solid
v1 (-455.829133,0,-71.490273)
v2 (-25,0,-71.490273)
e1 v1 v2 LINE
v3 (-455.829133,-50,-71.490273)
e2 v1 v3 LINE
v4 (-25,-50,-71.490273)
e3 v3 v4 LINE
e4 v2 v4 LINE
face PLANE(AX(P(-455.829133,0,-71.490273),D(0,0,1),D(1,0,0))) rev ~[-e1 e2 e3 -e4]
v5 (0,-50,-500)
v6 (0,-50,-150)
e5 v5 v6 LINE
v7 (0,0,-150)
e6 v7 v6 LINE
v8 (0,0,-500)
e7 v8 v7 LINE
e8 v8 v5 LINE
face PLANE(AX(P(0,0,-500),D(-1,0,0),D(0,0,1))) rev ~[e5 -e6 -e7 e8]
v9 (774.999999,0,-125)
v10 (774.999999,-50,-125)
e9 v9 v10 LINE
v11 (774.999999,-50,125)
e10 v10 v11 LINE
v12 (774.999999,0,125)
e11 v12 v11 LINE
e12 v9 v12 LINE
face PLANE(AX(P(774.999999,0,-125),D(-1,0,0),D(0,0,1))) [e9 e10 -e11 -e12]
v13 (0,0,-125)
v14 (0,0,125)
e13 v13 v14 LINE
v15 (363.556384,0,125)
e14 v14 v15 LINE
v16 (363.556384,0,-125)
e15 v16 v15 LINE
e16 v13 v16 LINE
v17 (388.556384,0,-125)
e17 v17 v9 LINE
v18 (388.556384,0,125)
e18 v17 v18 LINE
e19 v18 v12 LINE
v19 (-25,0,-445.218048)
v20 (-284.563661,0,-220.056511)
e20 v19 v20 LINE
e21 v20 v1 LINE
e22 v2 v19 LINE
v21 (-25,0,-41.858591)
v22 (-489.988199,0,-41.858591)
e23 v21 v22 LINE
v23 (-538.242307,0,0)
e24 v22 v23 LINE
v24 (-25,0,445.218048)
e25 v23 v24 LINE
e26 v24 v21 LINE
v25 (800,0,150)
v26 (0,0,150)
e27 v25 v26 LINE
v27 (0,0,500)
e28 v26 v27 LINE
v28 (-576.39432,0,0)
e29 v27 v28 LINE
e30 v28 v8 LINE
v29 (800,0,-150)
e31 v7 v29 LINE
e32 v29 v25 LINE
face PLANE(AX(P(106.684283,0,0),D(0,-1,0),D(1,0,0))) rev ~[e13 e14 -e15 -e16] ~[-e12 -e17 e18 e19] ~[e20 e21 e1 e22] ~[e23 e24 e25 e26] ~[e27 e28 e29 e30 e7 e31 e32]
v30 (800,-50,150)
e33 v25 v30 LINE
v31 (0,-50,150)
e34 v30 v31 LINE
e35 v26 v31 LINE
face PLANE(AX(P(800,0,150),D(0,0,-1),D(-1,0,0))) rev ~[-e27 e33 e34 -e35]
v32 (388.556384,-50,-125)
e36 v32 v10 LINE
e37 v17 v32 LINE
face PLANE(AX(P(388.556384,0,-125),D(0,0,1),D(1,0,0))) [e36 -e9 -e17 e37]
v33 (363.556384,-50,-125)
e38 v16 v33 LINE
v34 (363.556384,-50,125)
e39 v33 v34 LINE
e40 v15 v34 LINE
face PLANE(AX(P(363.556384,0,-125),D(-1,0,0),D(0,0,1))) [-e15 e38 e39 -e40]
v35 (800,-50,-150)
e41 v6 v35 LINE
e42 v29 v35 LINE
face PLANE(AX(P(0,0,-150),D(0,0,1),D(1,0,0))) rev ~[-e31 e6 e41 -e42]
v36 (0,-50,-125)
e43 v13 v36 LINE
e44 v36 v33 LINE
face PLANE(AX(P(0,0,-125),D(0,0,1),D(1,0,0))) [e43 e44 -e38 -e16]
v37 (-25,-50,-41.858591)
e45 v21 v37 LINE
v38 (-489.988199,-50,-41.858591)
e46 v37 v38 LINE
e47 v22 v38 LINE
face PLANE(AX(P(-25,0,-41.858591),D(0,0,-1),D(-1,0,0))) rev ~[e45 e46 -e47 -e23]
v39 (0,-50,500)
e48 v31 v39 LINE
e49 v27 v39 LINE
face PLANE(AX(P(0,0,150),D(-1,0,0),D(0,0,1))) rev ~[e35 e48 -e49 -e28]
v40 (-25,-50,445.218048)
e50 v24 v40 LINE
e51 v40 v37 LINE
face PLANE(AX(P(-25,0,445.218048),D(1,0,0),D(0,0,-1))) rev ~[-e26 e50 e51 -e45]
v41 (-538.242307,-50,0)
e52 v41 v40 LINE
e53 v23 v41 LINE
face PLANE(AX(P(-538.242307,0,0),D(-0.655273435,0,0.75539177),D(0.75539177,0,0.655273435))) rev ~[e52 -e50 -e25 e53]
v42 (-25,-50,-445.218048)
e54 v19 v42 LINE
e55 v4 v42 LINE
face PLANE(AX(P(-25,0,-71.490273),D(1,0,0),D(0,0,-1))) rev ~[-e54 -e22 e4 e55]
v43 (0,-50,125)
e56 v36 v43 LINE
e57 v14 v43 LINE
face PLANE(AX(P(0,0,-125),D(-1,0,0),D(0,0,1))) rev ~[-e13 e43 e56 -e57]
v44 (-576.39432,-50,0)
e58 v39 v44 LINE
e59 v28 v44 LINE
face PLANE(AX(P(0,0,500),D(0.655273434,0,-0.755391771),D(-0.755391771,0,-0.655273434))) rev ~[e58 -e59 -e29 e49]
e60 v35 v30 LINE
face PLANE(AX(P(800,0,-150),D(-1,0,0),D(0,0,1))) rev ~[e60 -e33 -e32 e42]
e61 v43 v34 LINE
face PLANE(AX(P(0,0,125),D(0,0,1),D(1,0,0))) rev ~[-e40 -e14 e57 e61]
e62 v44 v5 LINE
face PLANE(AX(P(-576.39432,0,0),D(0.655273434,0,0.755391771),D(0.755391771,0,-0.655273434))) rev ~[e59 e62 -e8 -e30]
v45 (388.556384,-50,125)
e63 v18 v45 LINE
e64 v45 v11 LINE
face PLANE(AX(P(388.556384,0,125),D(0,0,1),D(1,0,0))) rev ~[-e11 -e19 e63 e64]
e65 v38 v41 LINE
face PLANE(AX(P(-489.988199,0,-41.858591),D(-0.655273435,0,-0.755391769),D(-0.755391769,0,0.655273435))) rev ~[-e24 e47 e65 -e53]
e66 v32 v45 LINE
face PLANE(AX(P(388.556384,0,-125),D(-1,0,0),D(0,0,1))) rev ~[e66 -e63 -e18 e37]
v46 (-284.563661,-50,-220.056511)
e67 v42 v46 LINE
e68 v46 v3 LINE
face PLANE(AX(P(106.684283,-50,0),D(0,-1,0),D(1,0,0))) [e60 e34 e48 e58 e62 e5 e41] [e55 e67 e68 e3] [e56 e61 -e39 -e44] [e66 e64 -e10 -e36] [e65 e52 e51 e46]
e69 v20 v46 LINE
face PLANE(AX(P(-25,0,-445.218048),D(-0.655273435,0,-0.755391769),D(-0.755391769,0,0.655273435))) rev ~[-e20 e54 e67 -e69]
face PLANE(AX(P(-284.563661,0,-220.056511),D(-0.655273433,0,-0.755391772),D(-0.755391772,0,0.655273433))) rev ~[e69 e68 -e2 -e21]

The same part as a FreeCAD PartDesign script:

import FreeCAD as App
import Part
import Sketcher
Q = App.Units.Quantity


def add_polygon(sketch, points):
    """Adds a closed chain of lines whose ends are joined by coincident constraints."""
    first, n = sketch.GeometryCount, len(points)
    for a, b in zip(points, points[1:] + points[:1]):
        sketch.addGeometry(Part.LineSegment(App.Vector(*a, 0), App.Vector(*b, 0)), False)
    for i in range(n):
        sketch.addConstraint(Sketcher.Constraint("Coincident", first + i, 2, first + (i + 1) % n, 1))

doc = App.newDocument("Part")
body = doc.addObject("PartDesign::Body", "Body")

# Sketch on XZ plane
sketch1 = body.newObject("Sketcher::SketchObject", "Sketch")
sketch1.AttachmentSupport = (doc.getObject("XZ_Plane"), [""])
sketch1.MapMode = "FlatFace"
add_polygon(sketch1, [(0, 150), (0, 500), (-576, 0), (0, -500), (0, -150), (800, -150), (800, 150)])  # lines 0-6
add_polygon(sketch1, [(-285, -220), (-456, -71), (-25, -71), (-25, -445)])  # lines 7-10
add_polygon(sketch1, [(-538, 0), (-25, 445), (-25, -42), (-490, -42)])  # lines 11-14
add_polygon(sketch1, [(364, -125), (0, -125), (0, 125), (364, 125)])  # lines 15-18
add_polygon(sketch1, [(775, -125), (389, -125), (389, 125), (775, 125)])  # lines 19-22
sketch1.addConstraint([
    Sketcher.Constraint("Vertical", 0),
    Sketcher.Constraint("Vertical", 3),
    Sketcher.Constraint("Horizontal", 4),
    Sketcher.Constraint("Vertical", 5),
    Sketcher.Constraint("Horizontal", 6),
    Sketcher.Constraint("Horizontal", 8),
    Sketcher.Constraint("Vertical", 9),
    Sketcher.Constraint("Vertical", 12),
    Sketcher.Constraint("Horizontal", 13),
    Sketcher.Constraint("Horizontal", 15),
    Sketcher.Constraint("Vertical", 16),
    Sketcher.Constraint("Horizontal", 17),
    Sketcher.Constraint("Vertical", 18),
    Sketcher.Constraint("Horizontal", 19),
    Sketcher.Constraint("Vertical", 20),
    Sketcher.Constraint("Horizontal", 21),
    Sketcher.Constraint("Vertical", 22),
    Sketcher.Constraint("Symmetric", 0, 2, 2, 2, -1, 1),
    Sketcher.Constraint("Symmetric", 15, 2, 16, 2, -1, 1),
    Sketcher.Constraint("Symmetric", 3, 2, 6, 2, -1),
    Sketcher.Constraint("Symmetric", 9, 2, 11, 2, -1),
    Sketcher.Constraint("PointOnObject", 1, 2, -1),
    Sketcher.Constraint("PointOnObject", 14, 2, -1),
    Sketcher.Constraint("Parallel", 2, 7),
    Sketcher.Constraint("Parallel", 7, 10),
    Sketcher.Constraint("Parallel", 1, 11),
    Sketcher.Constraint("Parallel", 10, 14),
    Sketcher.Constraint("Horizontal", 18, 2, 19, 2),
    Sketcher.Constraint("Horizontal", 17, 2, 20, 2),
    Sketcher.Constraint("DistanceX", 4, 1, 4, 2, Q("800 mm")),
    Sketcher.Constraint("DistanceY", 0, 1, 0, 2, Q("350 mm")),
    Sketcher.Constraint("DistanceY", 5, 1, 5, 2, Q("300 mm")),
    Sketcher.Constraint("DistanceY", 16, 1, 16, 2, Q("250 mm")),
    Sketcher.Constraint("DistanceX", 8, 2, -1, 1, Q("25 mm")),
    Sketcher.Constraint("DistanceX", -1, 1, 21, 2, Q("774.999999 mm")),
    Sketcher.Constraint("DistanceX", 18, 2, 19, 2, Q("25 mm")),
    Sketcher.Constraint("DistanceX", 13, 2, 13, 1, Q("464.988199 mm")),
    Sketcher.Constraint("DistanceY", 12, 2, 12, 1, Q("487.076639 mm")),
    Sketcher.Constraint("Distance", 14, Q("63.879579 mm")),
    Sketcher.Constraint("DistanceX", 8, 1, 8, 2, Q("430.829133 mm")),
    Sketcher.Constraint("DistanceX", 15, 2, 15, 1, Q("363.556385 mm")),
    Sketcher.Constraint("DistanceX", 10, 2, -1, 1, Q("284.563661 mm")),
])
pad1 = body.newObject("PartDesign::Pad", "Pad")
pad1.Profile = sketch1
pad1.Length = 50

doc.recompute()
